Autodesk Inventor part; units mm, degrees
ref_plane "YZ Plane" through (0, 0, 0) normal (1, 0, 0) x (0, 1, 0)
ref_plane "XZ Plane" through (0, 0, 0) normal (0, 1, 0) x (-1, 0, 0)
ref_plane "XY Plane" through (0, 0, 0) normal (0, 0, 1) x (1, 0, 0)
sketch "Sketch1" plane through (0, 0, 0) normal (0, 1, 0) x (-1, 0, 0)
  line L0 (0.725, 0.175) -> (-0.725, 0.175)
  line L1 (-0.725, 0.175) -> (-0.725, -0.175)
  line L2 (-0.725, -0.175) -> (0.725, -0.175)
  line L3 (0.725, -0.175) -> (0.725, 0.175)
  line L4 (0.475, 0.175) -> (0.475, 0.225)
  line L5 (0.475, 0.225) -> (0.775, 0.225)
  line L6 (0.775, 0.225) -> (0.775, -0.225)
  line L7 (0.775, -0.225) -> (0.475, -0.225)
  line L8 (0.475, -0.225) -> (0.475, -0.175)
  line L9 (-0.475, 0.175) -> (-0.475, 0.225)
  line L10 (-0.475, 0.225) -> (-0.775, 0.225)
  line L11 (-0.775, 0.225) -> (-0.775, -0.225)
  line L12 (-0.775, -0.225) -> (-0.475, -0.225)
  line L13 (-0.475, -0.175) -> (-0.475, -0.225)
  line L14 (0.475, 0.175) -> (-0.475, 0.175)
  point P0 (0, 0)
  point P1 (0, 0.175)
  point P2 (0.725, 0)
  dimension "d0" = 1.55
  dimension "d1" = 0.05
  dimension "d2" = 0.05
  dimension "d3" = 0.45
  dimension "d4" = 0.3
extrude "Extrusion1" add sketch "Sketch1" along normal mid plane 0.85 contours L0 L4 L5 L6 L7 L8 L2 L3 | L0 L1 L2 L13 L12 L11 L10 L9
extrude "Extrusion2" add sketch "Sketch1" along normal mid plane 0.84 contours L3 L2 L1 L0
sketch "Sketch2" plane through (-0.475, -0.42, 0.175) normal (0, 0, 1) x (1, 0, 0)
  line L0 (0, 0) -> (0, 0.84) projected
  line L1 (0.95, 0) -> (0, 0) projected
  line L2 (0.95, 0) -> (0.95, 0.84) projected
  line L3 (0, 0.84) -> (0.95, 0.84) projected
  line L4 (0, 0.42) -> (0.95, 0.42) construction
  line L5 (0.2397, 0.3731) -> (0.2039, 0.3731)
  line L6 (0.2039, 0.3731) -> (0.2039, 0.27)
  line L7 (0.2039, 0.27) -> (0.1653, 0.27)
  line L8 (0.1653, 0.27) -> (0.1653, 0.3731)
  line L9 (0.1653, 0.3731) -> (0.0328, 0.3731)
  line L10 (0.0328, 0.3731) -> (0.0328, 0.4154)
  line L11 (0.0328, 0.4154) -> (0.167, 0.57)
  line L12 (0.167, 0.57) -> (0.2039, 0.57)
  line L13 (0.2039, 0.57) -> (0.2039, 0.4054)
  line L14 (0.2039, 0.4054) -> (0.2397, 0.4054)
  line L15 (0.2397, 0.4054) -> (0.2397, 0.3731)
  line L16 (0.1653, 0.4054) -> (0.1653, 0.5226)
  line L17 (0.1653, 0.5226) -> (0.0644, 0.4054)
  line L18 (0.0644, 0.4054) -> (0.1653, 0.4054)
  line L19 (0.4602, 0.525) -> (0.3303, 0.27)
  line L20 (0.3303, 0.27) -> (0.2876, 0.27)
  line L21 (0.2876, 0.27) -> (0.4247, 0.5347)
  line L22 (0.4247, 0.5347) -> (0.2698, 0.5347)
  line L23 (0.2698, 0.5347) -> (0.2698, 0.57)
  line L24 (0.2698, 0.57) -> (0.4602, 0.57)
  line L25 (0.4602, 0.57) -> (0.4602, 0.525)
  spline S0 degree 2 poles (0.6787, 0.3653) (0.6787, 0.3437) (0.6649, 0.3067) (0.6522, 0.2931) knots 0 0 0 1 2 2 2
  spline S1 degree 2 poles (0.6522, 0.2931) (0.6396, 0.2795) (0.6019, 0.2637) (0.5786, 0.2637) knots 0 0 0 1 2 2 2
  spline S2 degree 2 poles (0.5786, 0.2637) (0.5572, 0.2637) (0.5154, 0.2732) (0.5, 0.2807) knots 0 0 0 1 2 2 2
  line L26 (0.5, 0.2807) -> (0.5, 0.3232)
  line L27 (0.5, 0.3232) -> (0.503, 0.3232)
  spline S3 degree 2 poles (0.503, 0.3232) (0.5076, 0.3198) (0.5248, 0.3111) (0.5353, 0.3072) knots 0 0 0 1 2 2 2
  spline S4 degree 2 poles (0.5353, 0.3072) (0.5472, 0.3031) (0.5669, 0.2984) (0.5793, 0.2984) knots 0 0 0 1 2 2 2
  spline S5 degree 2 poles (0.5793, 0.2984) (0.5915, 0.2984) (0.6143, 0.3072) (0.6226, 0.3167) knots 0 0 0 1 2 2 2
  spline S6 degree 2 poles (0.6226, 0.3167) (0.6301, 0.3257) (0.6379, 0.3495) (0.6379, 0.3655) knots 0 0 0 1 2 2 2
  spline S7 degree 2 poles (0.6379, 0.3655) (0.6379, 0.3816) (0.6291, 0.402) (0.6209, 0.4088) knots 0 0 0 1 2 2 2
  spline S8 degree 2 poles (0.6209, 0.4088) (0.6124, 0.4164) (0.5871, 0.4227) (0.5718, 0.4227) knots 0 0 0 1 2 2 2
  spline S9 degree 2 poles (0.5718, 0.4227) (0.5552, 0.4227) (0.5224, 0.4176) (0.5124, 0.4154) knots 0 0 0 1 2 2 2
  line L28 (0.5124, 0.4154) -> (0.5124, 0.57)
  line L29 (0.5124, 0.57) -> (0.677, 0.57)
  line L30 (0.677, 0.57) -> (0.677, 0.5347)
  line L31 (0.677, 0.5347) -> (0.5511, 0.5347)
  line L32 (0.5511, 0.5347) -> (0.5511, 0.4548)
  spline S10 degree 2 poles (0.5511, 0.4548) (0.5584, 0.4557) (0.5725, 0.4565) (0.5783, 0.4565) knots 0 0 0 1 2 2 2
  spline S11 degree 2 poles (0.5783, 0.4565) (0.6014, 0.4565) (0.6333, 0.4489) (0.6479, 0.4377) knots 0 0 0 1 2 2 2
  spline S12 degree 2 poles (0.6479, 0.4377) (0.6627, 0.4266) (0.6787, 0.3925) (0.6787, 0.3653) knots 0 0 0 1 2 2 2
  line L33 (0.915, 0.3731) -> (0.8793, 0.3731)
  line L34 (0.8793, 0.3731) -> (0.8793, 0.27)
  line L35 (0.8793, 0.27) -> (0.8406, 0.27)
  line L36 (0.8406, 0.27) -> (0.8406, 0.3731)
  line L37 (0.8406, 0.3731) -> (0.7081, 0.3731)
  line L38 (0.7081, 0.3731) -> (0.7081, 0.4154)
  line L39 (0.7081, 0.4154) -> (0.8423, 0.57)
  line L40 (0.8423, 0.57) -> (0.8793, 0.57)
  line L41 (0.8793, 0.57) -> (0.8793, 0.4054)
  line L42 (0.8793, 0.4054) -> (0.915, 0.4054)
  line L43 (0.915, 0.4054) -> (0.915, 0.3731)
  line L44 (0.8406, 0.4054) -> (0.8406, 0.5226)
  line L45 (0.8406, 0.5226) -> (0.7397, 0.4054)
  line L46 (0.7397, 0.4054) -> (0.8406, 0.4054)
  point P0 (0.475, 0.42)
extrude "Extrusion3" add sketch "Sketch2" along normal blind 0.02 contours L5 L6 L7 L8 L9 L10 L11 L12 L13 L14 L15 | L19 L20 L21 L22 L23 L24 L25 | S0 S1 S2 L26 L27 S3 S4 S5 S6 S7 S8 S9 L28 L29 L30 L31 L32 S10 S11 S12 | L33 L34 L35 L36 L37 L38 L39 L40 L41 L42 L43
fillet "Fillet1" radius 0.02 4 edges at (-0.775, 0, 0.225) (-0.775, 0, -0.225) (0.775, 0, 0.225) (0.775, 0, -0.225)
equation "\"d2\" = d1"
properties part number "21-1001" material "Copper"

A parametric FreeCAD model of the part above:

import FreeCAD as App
import Part
import Sketcher

V = App.Vector
Q = App.Units.Quantity


def edges_at(feature, points):
    """Names of the edges that pass closest to the given points."""
    edges = feature.Shape.Edges
    near = lambda p: min(range(len(edges)), key=lambda i: edges[i].distToShape(Part.Vertex(*p))[0])
    return sorted({f"Edge{near(p) + 1}" for p in points})

doc = App.newDocument("Part")
body = doc.addObject("PartDesign::Body", "Body")
body.AllowCompound = True

# Sketch on XZ plane
sketch1 = body.newObject("Sketcher::SketchObject", "Sketch")
sketch1.AttachmentSupport = (doc.getObject("XZ_Plane"), [""])
sketch1.MapMode = "FlatFace"
sketch1.addGeometry(Part.LineSegment(V(-0.47, 0.17, 0), V(-0.72, 0.17, 0)), False)
sketch1.addGeometry(Part.LineSegment(V(-0.72, 0.17, 0), V(-0.72, -0.17, 0)), False)
sketch1.addGeometry(Part.LineSegment(V(-0.72, -0.17, 0), V(-0.47, -0.17, 0)), False)
sketch1.addGeometry(Part.LineSegment(V(-0.47, -0.17, 0), V(-0.47, -0.23, 0)), False)
sketch1.addGeometry(Part.LineSegment(V(-0.47, -0.23, 0), V(-0.78, -0.23, 0)), False)
sketch1.addGeometry(Part.LineSegment(V(-0.78, -0.23, 0), V(-0.78, 0.23, 0)), False)
sketch1.addGeometry(Part.LineSegment(V(-0.78, 0.23, 0), V(-0.47, 0.23, 0)), False)
sketch1.addGeometry(Part.LineSegment(V(-0.47, 0.23, 0), V(-0.47, 0.17, 0)), False)
sketch1.addGeometry(Part.LineSegment(V(0.72, 0.17, 0), V(0.47, 0.17, 0)), False)
sketch1.addGeometry(Part.LineSegment(V(0.47, 0.17, 0), V(0.47, 0.23, 0)), False)
sketch1.addGeometry(Part.LineSegment(V(0.47, 0.23, 0), V(0.78, 0.23, 0)), False)
sketch1.addGeometry(Part.LineSegment(V(0.78, 0.23, 0), V(0.78, -0.23, 0)), False)
sketch1.addGeometry(Part.LineSegment(V(0.78, -0.23, 0), V(0.47, -0.23, 0)), False)
sketch1.addGeometry(Part.LineSegment(V(0.47, -0.23, 0), V(0.47, -0.17, 0)), False)
sketch1.addGeometry(Part.LineSegment(V(0.47, -0.17, 0), V(0.72, -0.17, 0)), False)
sketch1.addGeometry(Part.LineSegment(V(0.72, -0.17, 0), V(0.72, 0.17, 0)), False)
sketch1.addConstraint(Sketcher.Constraint("Coincident", 0, 2, 1, 1))
sketch1.addConstraint(Sketcher.Constraint("Coincident", 1, 2, 2, 1))
sketch1.addConstraint(Sketcher.Constraint("Coincident", 2, 2, 3, 1))
sketch1.addConstraint(Sketcher.Constraint("Coincident", 3, 2, 4, 1))
sketch1.addConstraint(Sketcher.Constraint("Coincident", 4, 2, 5, 1))
sketch1.addConstraint(Sketcher.Constraint("Coincident", 5, 2, 6, 1))
sketch1.addConstraint(Sketcher.Constraint("Coincident", 6, 2, 7, 1))
sketch1.addConstraint(Sketcher.Constraint("Coincident", 7, 2, 0, 1))
sketch1.addConstraint(Sketcher.Constraint("Coincident", 8, 2, 9, 1))
sketch1.addConstraint(Sketcher.Constraint("Coincident", 9, 2, 10, 1))
sketch1.addConstraint(Sketcher.Constraint("Coincident", 10, 2, 11, 1))
sketch1.addConstraint(Sketcher.Constraint("Coincident", 11, 2, 12, 1))
sketch1.addConstraint(Sketcher.Constraint("Coincident", 12, 2, 13, 1))
sketch1.addConstraint(Sketcher.Constraint("Coincident", 13, 2, 14, 1))
sketch1.addConstraint(Sketcher.Constraint("Coincident", 14, 2, 15, 1))
sketch1.addConstraint(Sketcher.Constraint("Coincident", 15, 2, 8, 1))
sketch1.addConstraint(Sketcher.Constraint("Horizontal", 0))
sketch1.addConstraint(Sketcher.Constraint("Vertical", 1))
sketch1.addConstraint(Sketcher.Constraint("Horizontal", 2))
sketch1.addConstraint(Sketcher.Constraint("Vertical", 3))
sketch1.addConstraint(Sketcher.Constraint("Horizontal", 4))
sketch1.addConstraint(Sketcher.Constraint("Vertical", 5))
sketch1.addConstraint(Sketcher.Constraint("Horizontal", 6))
sketch1.addConstraint(Sketcher.Constraint("Vertical", 7))
sketch1.addConstraint(Sketcher.Constraint("Horizontal", 8))
sketch1.addConstraint(Sketcher.Constraint("Vertical", 9))
sketch1.addConstraint(Sketcher.Constraint("Horizontal", 10))
sketch1.addConstraint(Sketcher.Constraint("Vertical", 11))
sketch1.addConstraint(Sketcher.Constraint("Horizontal", 12))
sketch1.addConstraint(Sketcher.Constraint("Vertical", 13))
sketch1.addConstraint(Sketcher.Constraint("Horizontal", 14))
sketch1.addConstraint(Sketcher.Constraint("Vertical", 15))
sketch1.addConstraint(Sketcher.Constraint("Symmetric", 2, 2, 8, 2, -1, 1))
sketch1.addConstraint(Sketcher.Constraint("Symmetric", 4, 2, 10, 2, -1, 1))
sketch1.addConstraint(Sketcher.Constraint("Symmetric", 6, 2, 12, 2, -1, 1))
sketch1.addConstraint(Sketcher.Constraint("Symmetric", 0, 2, 14, 2, -1, 1))
sketch1.addConstraint(Sketcher.Constraint("Symmetric", 7, 2, 8, 2, -2))
sketch1.addConstraint(Sketcher.Constraint("Horizontal", 6, 2, 9, 2))
sketch1.addConstraint(Sketcher.Constraint("DistanceX", 4, 2, 4, 1, Q("0.3 mm")))
sketch1.addConstraint(Sketcher.Constraint("DistanceY", 3, 2, 3, 1, Q("0.05 mm")))
sketch1.addConstraint(Sketcher.Constraint("DistanceY", 5, 1, 5, 2, Q("0.45 mm")))
sketch1.addConstraint(Sketcher.Constraint("DistanceX", 4, 2, 1, 2, Q("0.05 mm")))
sketch1.addConstraint(Sketcher.Constraint("DistanceX", 0, 2, 8, 2, Q("1.2 mm")))
pad1 = body.newObject("PartDesign::Pad", "Pad")
pad1.Profile = sketch1
pad1.Length = 0.85
pad1.Midplane = True

# Sketch on XZ plane
sketch2 = body.newObject("Sketcher::SketchObject", "Sketch001")
sketch2.AttachmentSupport = (doc.getObject("XZ_Plane"), [""])
sketch2.MapMode = "FlatFace"
sketch2.addGeometry(Part.LineSegment(V(-0.72, -0.17, 0), V(-0.72, 0.17, 0)), False)
sketch2.addGeometry(Part.LineSegment(V(-0.72, 0.17, 0), V(0.72, 0.17, 0)), False)
sketch2.addGeometry(Part.LineSegment(V(0.72, 0.17, 0), V(0.72, -0.17, 0)), False)
sketch2.addGeometry(Part.LineSegment(V(0.72, -0.17, 0), V(-0.72, -0.17, 0)), False)
sketch2.addConstraint(Sketcher.Constraint("Coincident", 0, 2, 1, 1))
sketch2.addConstraint(Sketcher.Constraint("Coincident", 1, 2, 2, 1))
sketch2.addConstraint(Sketcher.Constraint("Coincident", 2, 2, 3, 1))
sketch2.addConstraint(Sketcher.Constraint("Coincident", 3, 2, 0, 1))
sketch2.addConstraint(Sketcher.Constraint("Vertical", 0))
sketch2.addConstraint(Sketcher.Constraint("Horizontal", 1))
sketch2.addConstraint(Sketcher.Constraint("Vertical", 2))
sketch2.addConstraint(Sketcher.Constraint("Horizontal", 3))
sketch2.addConstraint(Sketcher.Constraint("Symmetric", 0, 2, 2, 2, -1, 1))
sketch2.addConstraint(Sketcher.Constraint("DistanceX", 1, 1, 1, 2, Q("1.45 mm")))
sketch2.addConstraint(Sketcher.Constraint("DistanceY", 0, 1, 0, 2, Q("0.35 mm")))
pad2 = body.newObject("PartDesign::Pad", "Pad001")
pad2.Profile = sketch2
pad2.Length = 0.84
pad2.Midplane = True

# Sketch on XY plane
sketch3 = body.newObject("Sketcher::SketchObject", "Sketch002")
sketch3.AttachmentSupport = (doc.getObject("XY_Plane"), [""])
sketch3.MapMode = "FlatFace"
sketch3.AttachmentOffset = App.Placement(V(0, 0, 0.175), App.Rotation())
sketch3.addGeometry(Part.LineSegment(V(-0.2711, -0.0469, 0), V(-0.2353, -0.0469, 0)), False)
sketch3.addGeometry(Part.LineSegment(V(-0.2353, -0.0469, 0), V(-0.2353, -0.0146, 0)), False)
sketch3.addGeometry(Part.LineSegment(V(-0.2353, -0.0146, 0), V(-0.2711, -0.0146, 0)), False)
sketch3.addGeometry(Part.LineSegment(V(-0.2711, -0.0146, 0), V(-0.2711, 0.15, 0)), False)
sketch3.addGeometry(Part.LineSegment(V(-0.2711, 0.15, 0), V(-0.308, 0.15, 0)), False)
sketch3.addGeometry(Part.LineSegment(V(-0.308, 0.15, 0), V(-0.4422, -0.0046, 0)), False)
sketch3.addGeometry(Part.LineSegment(V(-0.4422, -0.0046, 0), V(-0.4422, -0.0469, 0)), False)
sketch3.addGeometry(Part.LineSegment(V(-0.4422, -0.0469, 0), V(-0.3097, -0.0469, 0)), False)
sketch3.addGeometry(Part.LineSegment(V(-0.3097, -0.0469, 0), V(-0.3097, -0.15, 0)), False)
sketch3.addGeometry(Part.LineSegment(V(-0.3097, -0.15, 0), V(-0.2711, -0.15, 0)), False)
sketch3.addGeometry(Part.LineSegment(V(-0.2711, -0.15, 0), V(-0.2711, -0.0469, 0)), False)
sketch3.addGeometry(Part.LineSegment(V(-0.3097, 0.1026, 0), V(-0.3097, -0.0146, 0)), False)
sketch3.addGeometry(Part.LineSegment(V(-0.3097, -0.0146, 0), V(-0.4106, -0.0146, 0)), False)
sketch3.addGeometry(Part.LineSegment(V(-0.4106, -0.0146, 0), V(-0.3097, 0.1026, 0)), False)
sketch3.addGeometry(Part.LineSegment(V(-0.1447, -0.15, 0), V(-0.0148, 0.105, 0)), False)
sketch3.addGeometry(Part.LineSegment(V(-0.0148, 0.105, 0), V(-0.0148, 0.15, 0)), False)
sketch3.addGeometry(Part.LineSegment(V(-0.0148, 0.15, 0), V(-0.2052, 0.15, 0)), False)
sketch3.addGeometry(Part.LineSegment(V(-0.2052, 0.15, 0), V(-0.2052, 0.1147, 0)), False)
sketch3.addGeometry(Part.LineSegment(V(-0.2052, 0.1147, 0), V(-0.0503, 0.1147, 0)), False)
sketch3.addGeometry(Part.LineSegment(V(-0.0503, 0.1147, 0), V(-0.1874, -0.15, 0)), False)
sketch3.addGeometry(Part.LineSegment(V(-0.1874, -0.15, 0), V(-0.1447, -0.15, 0)), False)
sketch3.addGeometry(Part.BSplineCurve([V(0.2037, -0.0547, 0), V(0.2037, -0.0763, 0), V(0.1899, -0.1133, 0), V(0.1772, -0.1269, 0)], [3, 1, 3], [0, 1, 2], False, 2, [1, 1, 1, 1], False), False)
sketch3.addGeometry(Part.BSplineCurve([V(0.1729, 0.0177, 0), V(0.1877, 0.0066, 0), V(0.2037, -0.0275, 0), V(0.2037, -0.0547, 0)], [3, 1, 3], [0, 1, 2], False, 2, [1, 1, 1, 1], False), False)
sketch3.addGeometry(Part.BSplineCurve([V(0.1033, 0.0365, 0), V(0.1264, 0.0365, 0), V(0.1583, 0.0289, 0), V(0.1729, 0.0177, 0)], [3, 1, 3], [0, 1, 2], False, 2, [1, 1, 1, 1], False), False)
sketch3.addGeometry(Part.BSplineCurve([V(0.0761, 0.0348, 0), V(0.0834, 0.0357, 0), V(0.0975, 0.0365, 0), V(0.1033, 0.0365, 0)], [3, 1, 3], [0, 1, 2], False, 2, [1, 1, 1, 1], False), False)
sketch3.addGeometry(Part.LineSegment(V(0.0761, 0.0348, 0), V(0.0761, 0.1147, 0)), False)
sketch3.addGeometry(Part.LineSegment(V(0.0761, 0.1147, 0), V(0.202, 0.1147, 0)), False)
sketch3.addGeometry(Part.LineSegment(V(0.202, 0.1147, 0), V(0.202, 0.15, 0)), False)
sketch3.addGeometry(Part.LineSegment(V(0.202, 0.15, 0), V(0.0374, 0.15, 0)), False)
sketch3.addGeometry(Part.LineSegment(V(0.0374, 0.15, 0), V(0.0374, -0.0046, 0)), False)
sketch3.addGeometry(Part.BSplineCurve([V(0.0968, 0.0027, 0), V(0.0802, 0.0027, 0), V(0.0474, -0.0024, 0), V(0.0374, -0.0046, 0)], [3, 1, 3], [0, 1, 2], False, 2, [1, 1, 1, 1], False), False)
sketch3.addGeometry(Part.BSplineCurve([V(0.1459, -0.0112, 0), V(0.1374, -0.0036, 0), V(0.1121, 0.0027, 0), V(0.0968, 0.0027, 0)], [3, 1, 3], [0, 1, 2], False, 2, [1, 1, 1, 1], False), False)
sketch3.addGeometry(Part.BSplineCurve([V(0.1629, -0.0545, 0), V(0.1629, -0.0384, 0), V(0.1541, -0.018, 0), V(0.1459, -0.0112, 0)], [3, 1, 3], [0, 1, 2], False, 2, [1, 1, 1, 1], False), False)
sketch3.addGeometry(Part.BSplineCurve([V(0.1476, -0.1033, 0), V(0.1551, -0.0943, 0), V(0.1629, -0.0705, 0), V(0.1629, -0.0545, 0)], [3, 1, 3], [0, 1, 2], False, 2, [1, 1, 1, 1], False), False)
sketch3.addGeometry(Part.BSplineCurve([V(0.1043, -0.1216, 0), V(0.1165, -0.1216, 0), V(0.1393, -0.1128, 0), V(0.1476, -0.1033, 0)], [3, 1, 3], [0, 1, 2], False, 2, [1, 1, 1, 1], False), False)
sketch3.addGeometry(Part.BSplineCurve([V(0.0603, -0.1128, 0), V(0.0722, -0.1169, 0), V(0.0919, -0.1216, 0), V(0.1043, -0.1216, 0)], [3, 1, 3], [0, 1, 2], False, 2, [1, 1, 1, 1], False), False)
sketch3.addGeometry(Part.BSplineCurve([V(0.028, -0.0968, 0), V(0.0326, -0.1002, 0), V(0.0498, -0.1089, 0), V(0.0603, -0.1128, 0)], [3, 1, 3], [0, 1, 2], False, 2, [1, 1, 1, 1], False), False)
sketch3.addGeometry(Part.LineSegment(V(0.028, -0.0968, 0), V(0.025, -0.0968, 0)), False)
sketch3.addGeometry(Part.LineSegment(V(0.025, -0.0968, 0), V(0.025, -0.1393, 0)), False)
sketch3.addGeometry(Part.BSplineCurve([V(0.1036, -0.1563, 0), V(0.0822, -0.1563, 0), V(0.0404, -0.1468, 0), V(0.025, -0.1393, 0)], [3, 1, 3], [0, 1, 2], False, 2, [1, 1, 1, 1], False), False)
sketch3.addGeometry(Part.BSplineCurve([V(0.1772, -0.1269, 0), V(0.1646, -0.1405, 0), V(0.1269, -0.1563, 0), V(0.1036, -0.1563, 0)], [3, 1, 3], [0, 1, 2], False, 2, [1, 1, 1, 1], False), False)
sketch3.addGeometry(Part.LineSegment(V(0.4043, -0.0469, 0), V(0.44, -0.0469, 0)), False)
sketch3.addGeometry(Part.LineSegment(V(0.44, -0.0469, 0), V(0.44, -0.0146, 0)), False)
sketch3.addGeometry(Part.LineSegment(V(0.44, -0.0146, 0), V(0.4043, -0.0146, 0)), False)
sketch3.addGeometry(Part.LineSegment(V(0.4043, -0.0146, 0), V(0.4043, 0.15, 0)), False)
sketch3.addGeometry(Part.LineSegment(V(0.4043, 0.15, 0), V(0.3673, 0.15, 0)), False)
sketch3.addGeometry(Part.LineSegment(V(0.3673, 0.15, 0), V(0.2331, -0.0046, 0)), False)
sketch3.addGeometry(Part.LineSegment(V(0.2331, -0.0046, 0), V(0.2331, -0.0469, 0)), False)
sketch3.addGeometry(Part.LineSegment(V(0.2331, -0.0469, 0), V(0.3656, -0.0469, 0)), False)
sketch3.addGeometry(Part.LineSegment(V(0.3656, -0.0469, 0), V(0.3656, -0.15, 0)), False)
sketch3.addGeometry(Part.LineSegment(V(0.3656, -0.15, 0), V(0.4043, -0.15, 0)), False)
sketch3.addGeometry(Part.LineSegment(V(0.4043, -0.15, 0), V(0.4043, -0.0469, 0)), False)
sketch3.addGeometry(Part.LineSegment(V(0.3656, 0.1026, 0), V(0.3656, -0.0146, 0)), False)
sketch3.addGeometry(Part.LineSegment(V(0.3656, -0.0146, 0), V(0.2647, -0.0146, 0)), False)
sketch3.addGeometry(Part.LineSegment(V(0.2647, -0.0146, 0), V(0.3656, 0.1026, 0)), False)
sketch3.addConstraint(Sketcher.Constraint("Block", 21))
sketch3.addConstraint(Sketcher.Constraint("Block", 22))
sketch3.addConstraint(Sketcher.Constraint("Block", 23))
sketch3.addConstraint(Sketcher.Constraint("Block", 24))
sketch3.addConstraint(Sketcher.Constraint("Block", 30))
sketch3.addConstraint(Sketcher.Constraint("Block", 31))
sketch3.addConstraint(Sketcher.Constraint("Block", 32))
sketch3.addConstraint(Sketcher.Constraint("Block", 33))
sketch3.addConstraint(Sketcher.Constraint("Block", 34))
sketch3.addConstraint(Sketcher.Constraint("Block", 35))
sketch3.addConstraint(Sketcher.Constraint("Block", 36))
sketch3.addConstraint(Sketcher.Constraint("Block", 39))
sketch3.addConstraint(Sketcher.Constraint("Block", 40))
sketch3.addConstraint(Sketcher.Constraint("Coincident", 0, 2, 1, 1))
sketch3.addConstraint(Sketcher.Constraint("Coincident", 1, 2, 2, 1))
sketch3.addConstraint(Sketcher.Constraint("Coincident", 2, 2, 3, 1))
sketch3.addConstraint(Sketcher.Constraint("Coincident", 3, 2, 4, 1))
sketch3.addConstraint(Sketcher.Constraint("Coincident", 4, 2, 5, 1))
sketch3.addConstraint(Sketcher.Constraint("Coincident", 5, 2, 6, 1))
sketch3.addConstraint(Sketcher.Constraint("Coincident", 6, 2, 7, 1))
sketch3.addConstraint(Sketcher.Constraint("Coincident", 7, 2, 8, 1))
sketch3.addConstraint(Sketcher.Constraint("Coincident", 8, 2, 9, 1))
sketch3.addConstraint(Sketcher.Constraint("Coincident", 9, 2, 10, 1))
sketch3.addConstraint(Sketcher.Constraint("Coincident", 10, 2, 0, 1))
sketch3.addConstraint(Sketcher.Constraint("Coincident", 11, 2, 12, 1))
sketch3.addConstraint(Sketcher.Constraint("Coincident", 12, 2, 13, 1))
sketch3.addConstraint(Sketcher.Constraint("Coincident", 13, 2, 11, 1))
sketch3.addConstraint(Sketcher.Constraint("Coincident", 14, 2, 15, 1))
sketch3.addConstraint(Sketcher.Constraint("Coincident", 15, 2, 16, 1))
sketch3.addConstraint(Sketcher.Constraint("Coincident", 16, 2, 17, 1))
sketch3.addConstraint(Sketcher.Constraint("Coincident", 17, 2, 18, 1))
sketch3.addConstraint(Sketcher.Constraint("Coincident", 18, 2, 19, 1))
sketch3.addConstraint(Sketcher.Constraint("Coincident", 19, 2, 20, 1))
sketch3.addConstraint(Sketcher.Constraint("Coincident", 20, 2, 14, 1))
sketch3.addConstraint(Sketcher.Constraint("Coincident", 24, 1, 25, 1))
sketch3.addConstraint(Sketcher.Constraint("Coincident", 25, 2, 26, 1))
sketch3.addConstraint(Sketcher.Constraint("Coincident", 26, 2, 27, 1))
sketch3.addConstraint(Sketcher.Constraint("Coincident", 27, 2, 28, 1))
sketch3.addConstraint(Sketcher.Constraint("Coincident", 28, 2, 29, 1))
sketch3.addConstraint(Sketcher.Constraint("Coincident", 29, 2, 30, 2))
sketch3.addConstraint(Sketcher.Constraint("Coincident", 36, 1, 37, 1))
sketch3.addConstraint(Sketcher.Constraint("Coincident", 37, 2, 38, 1))
sketch3.addConstraint(Sketcher.Constraint("Coincident", 38, 2, 39, 2))
sketch3.addConstraint(Sketcher.Constraint("Coincident", 41, 2, 42, 1))
sketch3.addConstraint(Sketcher.Constraint("Coincident", 42, 2, 43, 1))
sketch3.addConstraint(Sketcher.Constraint("Coincident", 43, 2, 44, 1))
sketch3.addConstraint(Sketcher.Constraint("Coincident", 44, 2, 45, 1))
sketch3.addConstraint(Sketcher.Constraint("Coincident", 45, 2, 46, 1))
sketch3.addConstraint(Sketcher.Constraint("Coincident", 46, 2, 47, 1))
sketch3.addConstraint(Sketcher.Constraint("Coincident", 47, 2, 48, 1))
sketch3.addConstraint(Sketcher.Constraint("Coincident", 48, 2, 49, 1))
sketch3.addConstraint(Sketcher.Constraint("Coincident", 49, 2, 50, 1))
sketch3.addConstraint(Sketcher.Constraint("Coincident", 50, 2, 51, 1))
sketch3.addConstraint(Sketcher.Constraint("Coincident", 51, 2, 41, 1))
sketch3.addConstraint(Sketcher.Constraint("Coincident", 52, 2, 53, 1))
sketch3.addConstraint(Sketcher.Constraint("Coincident", 53, 2, 54, 1))
sketch3.addConstraint(Sketcher.Constraint("Coincident", 54, 2, 52, 1))
sketch3.addConstraint(Sketcher.Constraint("Horizontal", 0))
sketch3.addConstraint(Sketcher.Constraint("Vertical", 1))
sketch3.addConstraint(Sketcher.Constraint("Horizontal", 2))
sketch3.addConstraint(Sketcher.Constraint("Vertical", 3))
sketch3.addConstraint(Sketcher.Constraint("Horizontal", 4))
sketch3.addConstraint(Sketcher.Constraint("Vertical", 6))
sketch3.addConstraint(Sketcher.Constraint("Horizontal", 7))
sketch3.addConstraint(Sketcher.Constraint("Vertical", 8))
sketch3.addConstraint(Sketcher.Constraint("Horizontal", 9))
sketch3.addConstraint(Sketcher.Constraint("Vertical", 10))
sketch3.addConstraint(Sketcher.Constraint("Vertical", 11))
sketch3.addConstraint(Sketcher.Constraint("Horizontal", 12))
sketch3.addConstraint(Sketcher.Constraint("Vertical", 15))
sketch3.addConstraint(Sketcher.Constraint("Horizontal", 16))
sketch3.addConstraint(Sketcher.Constraint("Vertical", 17))
sketch3.addConstraint(Sketcher.Constraint("Horizontal", 18))
sketch3.addConstraint(Sketcher.Constraint("Horizontal", 20))
sketch3.addConstraint(Sketcher.Constraint("Vertical", 25))
sketch3.addConstraint(Sketcher.Constraint("Horizontal", 26))
sketch3.addConstraint(Sketcher.Constraint("Vertical", 27))
sketch3.addConstraint(Sketcher.Constraint("Horizontal", 28))
sketch3.addConstraint(Sketcher.Constraint("Vertical", 29))
sketch3.addConstraint(Sketcher.Constraint("Horizontal", 37))
sketch3.addConstraint(Sketcher.Constraint("Vertical", 38))
sketch3.addConstraint(Sketcher.Constraint("Horizontal", 41))
sketch3.addConstraint(Sketcher.Constraint("Vertical", 42))
sketch3.addConstraint(Sketcher.Constraint("Horizontal", 43))
sketch3.addConstraint(Sketcher.Constraint("Vertical", 44))
sketch3.addConstraint(Sketcher.Constraint("Horizontal", 45))
sketch3.addConstraint(Sketcher.Constraint("Vertical", 47))
sketch3.addConstraint(Sketcher.Constraint("Horizontal", 48))
sketch3.addConstraint(Sketcher.Constraint("Vertical", 49))
sketch3.addConstraint(Sketcher.Constraint("Horizontal", 50))
sketch3.addConstraint(Sketcher.Constraint("Vertical", 51))
sketch3.addConstraint(Sketcher.Constraint("Vertical", 52))
sketch3.addConstraint(Sketcher.Constraint("Horizontal", 53))
sketch3.addConstraint(Sketcher.Constraint("DistanceY", 25, 1, 25, 2, Q("0.08 mm")))
sketch3.addConstraint(Sketcher.Constraint("DistanceX", 4, 2, 4, 1, Q("0.037 mm")))
sketch3.addConstraint(Sketcher.Constraint("DistanceX", 12, 2, 12, 1, Q("0.101 mm")))
sketch3.addConstraint(Sketcher.Constraint("DistanceX", 18, 1, 18, 2, Q("0.155 mm")))
sketch3.addConstraint(Sketcher.Constraint("DistanceX", 26, 1, 26, 2, Q("0.126 mm")))
sketch3.addConstraint(Sketcher.Constraint("DistanceX", 45, 2, 45, 1, Q("0.037 mm")))
sketch3.addConstraint(Sketcher.Constraint("DistanceX", 53, 2, 53, 1, Q("0.101 mm")))
sketch3.addConstraint(Sketcher.Constraint("DistanceY", 8, 2, 8, 1, Q("0.103 mm")))
sketch3.addConstraint(Sketcher.Constraint("DistanceY", 10, 1, 10, 2, Q("0.103 mm")))
sketch3.addConstraint(Sketcher.Constraint("DistanceY", 15, 1, 15, 2, Q("0.045 mm")))
sketch3.addConstraint(Sketcher.Constraint("DistanceY", 49, 2, 49, 1, Q("0.103 mm")))
sketch3.addConstraint(Sketcher.Constraint("DistanceY", 51, 1, 51, 2, Q("0.103 mm")))
sketch3.addConstraint(Sketcher.Constraint("DistanceY", -1, 1, 3, 2, Q("0.15 mm")))
sketch3.addConstraint(Sketcher.Constraint("DistanceY", 8, 2, -1, 1, Q("0.15 mm")))
sketch3.addConstraint(Sketcher.Constraint("DistanceY", -1, 1, 15, 2, Q("0.15 mm")))
sketch3.addConstraint(Sketcher.Constraint("DistanceY", 19, 2, -1, 1, Q("0.15 mm")))
sketch3.addConstraint(Sketcher.Constraint("DistanceY", -1, 1, 27, 2, Q("0.15 mm")))
sketch3.addConstraint(Sketcher.Constraint("DistanceX", -1, 1, 41, 2, Q("0.44 mm")))
sketch3.addConstraint(Sketcher.Constraint("DistanceY", -1, 1, 44, 2, Q("0.15 mm")))
sketch3.addConstraint(Sketcher.Constraint("DistanceY", 49, 2, -1, 1, Q("0.15 mm")))
sketch3.addConstraint(Sketcher.Constraint("DistanceY", 2, 2, 5, 2, Q("0.01 mm")))
sketch3.addConstraint(Sketcher.Constraint("DistanceY", 12, 2, 5, 2, Q("0.01 mm")))
sketch3.addConstraint(Sketcher.Constraint("DistanceX", 1, 2, 16, 2, Q("0.03 mm")))
sketch3.addConstraint(Sketcher.Constraint("DistanceY", 42, 2, 29, 2, Q("0.01 mm")))
sketch3.addConstraint(Sketcher.Constraint("DistanceY", 43, 2, 46, 2, Q("0.01 mm")))
sketch3.addConstraint(Sketcher.Constraint("DistanceY", 53, 2, 46, 2, Q("0.01 mm")))
sketch3.addConstraint(Sketcher.Constraint("Distance", 19, Q("0.298 mm")))
sketch3.addConstraint(Sketcher.Constraint("DistanceX", 0, 1, 0, 2, Q("0.0358 mm")))
sketch3.addConstraint(Sketcher.Constraint("DistanceX", 2, 2, 2, 1, Q("0.0358 mm")))
sketch3.addConstraint(Sketcher.Constraint("DistanceX", 7, 1, 7, 2, Q("0.1325 mm")))
sketch3.addConstraint(Sketcher.Constraint("DistanceX", 9, 1, 9, 2, Q("0.0386 mm")))
sketch3.addConstraint(Sketcher.Constraint("DistanceX", 16, 2, 16, 1, Q("0.1904 mm")))
sketch3.addConstraint(Sketcher.Constraint("DistanceX", 20, 1, 20, 2, Q("0.0427 mm")))
sketch3.addConstraint(Sketcher.Constraint("DistanceX", 41, 1, 41, 2, Q("0.0357 mm")))
sketch3.addConstraint(Sketcher.Constraint("DistanceX", 43, 2, 43, 1, Q("0.0357 mm")))
sketch3.addConstraint(Sketcher.Constraint("DistanceX", 48, 1, 48, 2, Q("0.1325 mm")))
sketch3.addConstraint(Sketcher.Constraint("DistanceX", 50, 1, 50, 2, Q("0.0387 mm")))
sketch3.addConstraint(Sketcher.Constraint("DistanceY", 1, 1, 1, 2, Q("0.0323 mm")))
sketch3.addConstraint(Sketcher.Constraint("DistanceY", 11, 2, 11, 1, Q("0.1172 mm")))
sketch3.addConstraint(Sketcher.Constraint("DistanceY", 17, 2, 17, 1, Q("0.0353 mm")))
sketch3.addConstraint(Sketcher.Constraint("DistanceY", 52, 2, 52, 1, Q("0.1172 mm")))
sketch3.addConstraint(Sketcher.Constraint("DistanceX", 2, 2, -1, 1, Q("0.271 mm")))
sketch3.addConstraint(Sketcher.Constraint("DistanceX", 12, 2, 7, 2, Q("0.101 mm")))
sketch3.addConstraint(Sketcher.Constraint("DistanceX", 53, 2, 48, 2, Q("0.101 mm")))
pad3 = body.newObject("PartDesign::Pad", "Pad002")
pad3.Profile = sketch3
pad3.Length = 0.02
doc.recompute()

fillet = body.newObject("PartDesign::Fillet", "Fillet")
fillet.Base = (pad3, edges_at(pad3, [
    (-0.775, 0, 0.225),
    (-0.775, 0, -0.225),
    (0.775, 0, 0.225),
    (0.775, 0, -0.225),
]))
fillet.Radius = 0.02

doc.recompute()
